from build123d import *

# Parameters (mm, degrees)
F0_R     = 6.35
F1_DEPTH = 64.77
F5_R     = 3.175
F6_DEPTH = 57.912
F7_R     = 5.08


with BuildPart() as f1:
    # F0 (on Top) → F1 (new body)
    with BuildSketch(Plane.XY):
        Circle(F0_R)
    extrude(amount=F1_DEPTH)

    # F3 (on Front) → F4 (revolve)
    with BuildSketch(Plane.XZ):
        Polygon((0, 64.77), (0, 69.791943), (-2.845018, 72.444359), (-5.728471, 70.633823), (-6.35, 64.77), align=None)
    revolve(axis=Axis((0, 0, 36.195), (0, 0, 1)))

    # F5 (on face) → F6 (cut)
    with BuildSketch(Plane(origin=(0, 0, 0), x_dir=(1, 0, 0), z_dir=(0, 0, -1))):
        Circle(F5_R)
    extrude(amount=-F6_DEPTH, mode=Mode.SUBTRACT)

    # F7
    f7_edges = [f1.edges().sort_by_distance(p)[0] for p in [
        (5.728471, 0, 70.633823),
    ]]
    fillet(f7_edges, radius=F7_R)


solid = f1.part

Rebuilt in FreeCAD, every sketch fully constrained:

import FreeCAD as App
import Part
import Sketcher

V = App.Vector
Q = App.Units.Quantity


def edges_at(feature, points):
    """Names of the edges that pass closest to the given points."""
    edges = feature.Shape.Edges
    near = lambda p: min(range(len(edges)), key=lambda i: edges[i].distToShape(Part.Vertex(*p))[0])
    return sorted({f"Edge{near(p) + 1}" for p in points})

doc = App.newDocument("Part")
params = doc.addObject("Spreadsheet::Sheet", "Params")
for row, (alias, value) in enumerate([
    ("sketch1_diameter", "0.5 in"),
    ("pad1_length", "2.55 in"),
    ("sketch2_width", "0.25 in"),
    ("revolution_angle", "360 deg"),
    ("sketch3_diameter", "0.25 in"),
    ("pocket1_length", "2.28 in"),
    ("fillet_radius", "0.2 in"),
], start=1):
    params.set(f"A{row}", alias)
    params.set(f"B{row}", "=" + value)
    params.setAlias(f"B{row}", alias)

body = doc.addObject("PartDesign::Body", "Body")

# Sketch on XY plane
sketch1 = doc.addObject("Sketcher::SketchObject", "Sketch")
body.addObject(sketch1)
sketch1.AttachmentSupport = (doc.XY_Plane, [""])
sketch1.MapMode = "FlatFace"
sketch1.addGeometry(Part.Circle(V(0, 0, 0), V(0, 0, 1), 6), False)
sketch1.addConstraint(Sketcher.Constraint("Coincident", 0, 3, -1, 1))
sketch1.addConstraint(Sketcher.Constraint("Diameter", 0, Q("0.5 in")))
sketch1.setExpression("Constraints[1]", "Params.sketch1_diameter")
pad1 = doc.addObject("PartDesign::Pad", "Pad")
body.addObject(pad1)
pad1.Profile = sketch1
pad1.setExpression("Length", "Params.pad1_length")

# Sketch on XZ plane
sketch2 = doc.addObject("Sketcher::SketchObject", "Sketch001")
body.addObject(sketch2)
sketch2.AttachmentSupport = (doc.XZ_Plane, [""])
sketch2.MapMode = "FlatFace"
sketch2.addGeometry(Part.LineSegment(V(0, 64.8, 0), V(0, 69.8, 0)), False)
sketch2.addGeometry(Part.LineSegment(V(0, 69.8, 0), V(-2.8, 72.4, 0)), False)
sketch2.addGeometry(Part.LineSegment(V(-2.8, 72.4, 0), V(-5.7, 70.6, 0)), False)
sketch2.addGeometry(Part.LineSegment(V(-5.7, 70.6, 0), V(-6.3, 64.8, 0)), False)
sketch2.addGeometry(Part.LineSegment(V(-6.3, 64.8, 0), V(0, 64.8, 0)), False)
sketch2.addConstraint(Sketcher.Constraint("Coincident", 0, 2, 1, 1))
sketch2.addConstraint(Sketcher.Constraint("Coincident", 1, 2, 2, 1))
sketch2.addConstraint(Sketcher.Constraint("Coincident", 2, 2, 3, 1))
sketch2.addConstraint(Sketcher.Constraint("Coincident", 3, 2, 4, 1))
sketch2.addConstraint(Sketcher.Constraint("Coincident", 4, 2, 0, 1))
sketch2.addConstraint(Sketcher.Constraint("Vertical", 0))
sketch2.addConstraint(Sketcher.Constraint("Horizontal", 4))
sketch2.addConstraint(Sketcher.Constraint("PointOnObject", 0, 2, -2))
sketch2.addConstraint(Sketcher.Constraint("DistanceX", 4, 1, 4, 2, Q("0.25 in")))
sketch2.addConstraint(Sketcher.Constraint("DistanceY", -1, 1, 3, 2, Q("2.55 in")))
sketch2.addConstraint(Sketcher.Constraint("Distance", 3, 5.89667))
sketch2.addConstraint(Sketcher.Constraint("DistanceY", 0, 1, 0, 2, 5.021943))
sketch2.addConstraint(Sketcher.Constraint("DistanceX", 1, 2, -1, 1, 2.845018))
sketch2.addConstraint(Sketcher.Constraint("DistanceY", -1, 1, 1, 2, 72.444359))
sketch2.addConstraint(Sketcher.Constraint("DistanceX", 2, 2, -1, 1, 5.728471))
sketch2.setExpression("Constraints[8]", "Params.sketch2_width")
revolution = doc.addObject("PartDesign::Revolution", "Revolution")
body.addObject(revolution)
revolution.Profile = sketch2
revolution.ReferenceAxis = (sketch2, ["V_Axis"])
revolution.setExpression("Angle", "Params.revolution_angle")

# Sketch on XY plane
sketch3 = doc.addObject("Sketcher::SketchObject", "Sketch002")
body.addObject(sketch3)
sketch3.AttachmentSupport = (doc.XY_Plane, [""])
sketch3.MapMode = "FlatFace"
sketch3.addGeometry(Part.Circle(V(0, 0, 0), V(0, 0, 1), 3.2), False)
sketch3.addConstraint(Sketcher.Constraint("Coincident", 0, 3, -1, 1))
sketch3.addConstraint(Sketcher.Constraint("Diameter", 0, Q("0.25 in")))
sketch3.setExpression("Constraints[1]", "Params.sketch3_diameter")
pocket1 = doc.addObject("PartDesign::Pocket", "Pocket")
body.addObject(pocket1)
pocket1.Profile = sketch3
pocket1.setExpression("Length", "Params.pocket1_length")
pocket1.Reversed = True
doc.recompute()

fillet = doc.addObject("PartDesign::Fillet", "Fillet")
body.addObject(fillet)
fillet.Base = (pocket1, edges_at(pocket1, [(5.728, 0, 70.634)]))
fillet.setExpression("Radius", "Params.fillet_radius")

doc.recompute()
